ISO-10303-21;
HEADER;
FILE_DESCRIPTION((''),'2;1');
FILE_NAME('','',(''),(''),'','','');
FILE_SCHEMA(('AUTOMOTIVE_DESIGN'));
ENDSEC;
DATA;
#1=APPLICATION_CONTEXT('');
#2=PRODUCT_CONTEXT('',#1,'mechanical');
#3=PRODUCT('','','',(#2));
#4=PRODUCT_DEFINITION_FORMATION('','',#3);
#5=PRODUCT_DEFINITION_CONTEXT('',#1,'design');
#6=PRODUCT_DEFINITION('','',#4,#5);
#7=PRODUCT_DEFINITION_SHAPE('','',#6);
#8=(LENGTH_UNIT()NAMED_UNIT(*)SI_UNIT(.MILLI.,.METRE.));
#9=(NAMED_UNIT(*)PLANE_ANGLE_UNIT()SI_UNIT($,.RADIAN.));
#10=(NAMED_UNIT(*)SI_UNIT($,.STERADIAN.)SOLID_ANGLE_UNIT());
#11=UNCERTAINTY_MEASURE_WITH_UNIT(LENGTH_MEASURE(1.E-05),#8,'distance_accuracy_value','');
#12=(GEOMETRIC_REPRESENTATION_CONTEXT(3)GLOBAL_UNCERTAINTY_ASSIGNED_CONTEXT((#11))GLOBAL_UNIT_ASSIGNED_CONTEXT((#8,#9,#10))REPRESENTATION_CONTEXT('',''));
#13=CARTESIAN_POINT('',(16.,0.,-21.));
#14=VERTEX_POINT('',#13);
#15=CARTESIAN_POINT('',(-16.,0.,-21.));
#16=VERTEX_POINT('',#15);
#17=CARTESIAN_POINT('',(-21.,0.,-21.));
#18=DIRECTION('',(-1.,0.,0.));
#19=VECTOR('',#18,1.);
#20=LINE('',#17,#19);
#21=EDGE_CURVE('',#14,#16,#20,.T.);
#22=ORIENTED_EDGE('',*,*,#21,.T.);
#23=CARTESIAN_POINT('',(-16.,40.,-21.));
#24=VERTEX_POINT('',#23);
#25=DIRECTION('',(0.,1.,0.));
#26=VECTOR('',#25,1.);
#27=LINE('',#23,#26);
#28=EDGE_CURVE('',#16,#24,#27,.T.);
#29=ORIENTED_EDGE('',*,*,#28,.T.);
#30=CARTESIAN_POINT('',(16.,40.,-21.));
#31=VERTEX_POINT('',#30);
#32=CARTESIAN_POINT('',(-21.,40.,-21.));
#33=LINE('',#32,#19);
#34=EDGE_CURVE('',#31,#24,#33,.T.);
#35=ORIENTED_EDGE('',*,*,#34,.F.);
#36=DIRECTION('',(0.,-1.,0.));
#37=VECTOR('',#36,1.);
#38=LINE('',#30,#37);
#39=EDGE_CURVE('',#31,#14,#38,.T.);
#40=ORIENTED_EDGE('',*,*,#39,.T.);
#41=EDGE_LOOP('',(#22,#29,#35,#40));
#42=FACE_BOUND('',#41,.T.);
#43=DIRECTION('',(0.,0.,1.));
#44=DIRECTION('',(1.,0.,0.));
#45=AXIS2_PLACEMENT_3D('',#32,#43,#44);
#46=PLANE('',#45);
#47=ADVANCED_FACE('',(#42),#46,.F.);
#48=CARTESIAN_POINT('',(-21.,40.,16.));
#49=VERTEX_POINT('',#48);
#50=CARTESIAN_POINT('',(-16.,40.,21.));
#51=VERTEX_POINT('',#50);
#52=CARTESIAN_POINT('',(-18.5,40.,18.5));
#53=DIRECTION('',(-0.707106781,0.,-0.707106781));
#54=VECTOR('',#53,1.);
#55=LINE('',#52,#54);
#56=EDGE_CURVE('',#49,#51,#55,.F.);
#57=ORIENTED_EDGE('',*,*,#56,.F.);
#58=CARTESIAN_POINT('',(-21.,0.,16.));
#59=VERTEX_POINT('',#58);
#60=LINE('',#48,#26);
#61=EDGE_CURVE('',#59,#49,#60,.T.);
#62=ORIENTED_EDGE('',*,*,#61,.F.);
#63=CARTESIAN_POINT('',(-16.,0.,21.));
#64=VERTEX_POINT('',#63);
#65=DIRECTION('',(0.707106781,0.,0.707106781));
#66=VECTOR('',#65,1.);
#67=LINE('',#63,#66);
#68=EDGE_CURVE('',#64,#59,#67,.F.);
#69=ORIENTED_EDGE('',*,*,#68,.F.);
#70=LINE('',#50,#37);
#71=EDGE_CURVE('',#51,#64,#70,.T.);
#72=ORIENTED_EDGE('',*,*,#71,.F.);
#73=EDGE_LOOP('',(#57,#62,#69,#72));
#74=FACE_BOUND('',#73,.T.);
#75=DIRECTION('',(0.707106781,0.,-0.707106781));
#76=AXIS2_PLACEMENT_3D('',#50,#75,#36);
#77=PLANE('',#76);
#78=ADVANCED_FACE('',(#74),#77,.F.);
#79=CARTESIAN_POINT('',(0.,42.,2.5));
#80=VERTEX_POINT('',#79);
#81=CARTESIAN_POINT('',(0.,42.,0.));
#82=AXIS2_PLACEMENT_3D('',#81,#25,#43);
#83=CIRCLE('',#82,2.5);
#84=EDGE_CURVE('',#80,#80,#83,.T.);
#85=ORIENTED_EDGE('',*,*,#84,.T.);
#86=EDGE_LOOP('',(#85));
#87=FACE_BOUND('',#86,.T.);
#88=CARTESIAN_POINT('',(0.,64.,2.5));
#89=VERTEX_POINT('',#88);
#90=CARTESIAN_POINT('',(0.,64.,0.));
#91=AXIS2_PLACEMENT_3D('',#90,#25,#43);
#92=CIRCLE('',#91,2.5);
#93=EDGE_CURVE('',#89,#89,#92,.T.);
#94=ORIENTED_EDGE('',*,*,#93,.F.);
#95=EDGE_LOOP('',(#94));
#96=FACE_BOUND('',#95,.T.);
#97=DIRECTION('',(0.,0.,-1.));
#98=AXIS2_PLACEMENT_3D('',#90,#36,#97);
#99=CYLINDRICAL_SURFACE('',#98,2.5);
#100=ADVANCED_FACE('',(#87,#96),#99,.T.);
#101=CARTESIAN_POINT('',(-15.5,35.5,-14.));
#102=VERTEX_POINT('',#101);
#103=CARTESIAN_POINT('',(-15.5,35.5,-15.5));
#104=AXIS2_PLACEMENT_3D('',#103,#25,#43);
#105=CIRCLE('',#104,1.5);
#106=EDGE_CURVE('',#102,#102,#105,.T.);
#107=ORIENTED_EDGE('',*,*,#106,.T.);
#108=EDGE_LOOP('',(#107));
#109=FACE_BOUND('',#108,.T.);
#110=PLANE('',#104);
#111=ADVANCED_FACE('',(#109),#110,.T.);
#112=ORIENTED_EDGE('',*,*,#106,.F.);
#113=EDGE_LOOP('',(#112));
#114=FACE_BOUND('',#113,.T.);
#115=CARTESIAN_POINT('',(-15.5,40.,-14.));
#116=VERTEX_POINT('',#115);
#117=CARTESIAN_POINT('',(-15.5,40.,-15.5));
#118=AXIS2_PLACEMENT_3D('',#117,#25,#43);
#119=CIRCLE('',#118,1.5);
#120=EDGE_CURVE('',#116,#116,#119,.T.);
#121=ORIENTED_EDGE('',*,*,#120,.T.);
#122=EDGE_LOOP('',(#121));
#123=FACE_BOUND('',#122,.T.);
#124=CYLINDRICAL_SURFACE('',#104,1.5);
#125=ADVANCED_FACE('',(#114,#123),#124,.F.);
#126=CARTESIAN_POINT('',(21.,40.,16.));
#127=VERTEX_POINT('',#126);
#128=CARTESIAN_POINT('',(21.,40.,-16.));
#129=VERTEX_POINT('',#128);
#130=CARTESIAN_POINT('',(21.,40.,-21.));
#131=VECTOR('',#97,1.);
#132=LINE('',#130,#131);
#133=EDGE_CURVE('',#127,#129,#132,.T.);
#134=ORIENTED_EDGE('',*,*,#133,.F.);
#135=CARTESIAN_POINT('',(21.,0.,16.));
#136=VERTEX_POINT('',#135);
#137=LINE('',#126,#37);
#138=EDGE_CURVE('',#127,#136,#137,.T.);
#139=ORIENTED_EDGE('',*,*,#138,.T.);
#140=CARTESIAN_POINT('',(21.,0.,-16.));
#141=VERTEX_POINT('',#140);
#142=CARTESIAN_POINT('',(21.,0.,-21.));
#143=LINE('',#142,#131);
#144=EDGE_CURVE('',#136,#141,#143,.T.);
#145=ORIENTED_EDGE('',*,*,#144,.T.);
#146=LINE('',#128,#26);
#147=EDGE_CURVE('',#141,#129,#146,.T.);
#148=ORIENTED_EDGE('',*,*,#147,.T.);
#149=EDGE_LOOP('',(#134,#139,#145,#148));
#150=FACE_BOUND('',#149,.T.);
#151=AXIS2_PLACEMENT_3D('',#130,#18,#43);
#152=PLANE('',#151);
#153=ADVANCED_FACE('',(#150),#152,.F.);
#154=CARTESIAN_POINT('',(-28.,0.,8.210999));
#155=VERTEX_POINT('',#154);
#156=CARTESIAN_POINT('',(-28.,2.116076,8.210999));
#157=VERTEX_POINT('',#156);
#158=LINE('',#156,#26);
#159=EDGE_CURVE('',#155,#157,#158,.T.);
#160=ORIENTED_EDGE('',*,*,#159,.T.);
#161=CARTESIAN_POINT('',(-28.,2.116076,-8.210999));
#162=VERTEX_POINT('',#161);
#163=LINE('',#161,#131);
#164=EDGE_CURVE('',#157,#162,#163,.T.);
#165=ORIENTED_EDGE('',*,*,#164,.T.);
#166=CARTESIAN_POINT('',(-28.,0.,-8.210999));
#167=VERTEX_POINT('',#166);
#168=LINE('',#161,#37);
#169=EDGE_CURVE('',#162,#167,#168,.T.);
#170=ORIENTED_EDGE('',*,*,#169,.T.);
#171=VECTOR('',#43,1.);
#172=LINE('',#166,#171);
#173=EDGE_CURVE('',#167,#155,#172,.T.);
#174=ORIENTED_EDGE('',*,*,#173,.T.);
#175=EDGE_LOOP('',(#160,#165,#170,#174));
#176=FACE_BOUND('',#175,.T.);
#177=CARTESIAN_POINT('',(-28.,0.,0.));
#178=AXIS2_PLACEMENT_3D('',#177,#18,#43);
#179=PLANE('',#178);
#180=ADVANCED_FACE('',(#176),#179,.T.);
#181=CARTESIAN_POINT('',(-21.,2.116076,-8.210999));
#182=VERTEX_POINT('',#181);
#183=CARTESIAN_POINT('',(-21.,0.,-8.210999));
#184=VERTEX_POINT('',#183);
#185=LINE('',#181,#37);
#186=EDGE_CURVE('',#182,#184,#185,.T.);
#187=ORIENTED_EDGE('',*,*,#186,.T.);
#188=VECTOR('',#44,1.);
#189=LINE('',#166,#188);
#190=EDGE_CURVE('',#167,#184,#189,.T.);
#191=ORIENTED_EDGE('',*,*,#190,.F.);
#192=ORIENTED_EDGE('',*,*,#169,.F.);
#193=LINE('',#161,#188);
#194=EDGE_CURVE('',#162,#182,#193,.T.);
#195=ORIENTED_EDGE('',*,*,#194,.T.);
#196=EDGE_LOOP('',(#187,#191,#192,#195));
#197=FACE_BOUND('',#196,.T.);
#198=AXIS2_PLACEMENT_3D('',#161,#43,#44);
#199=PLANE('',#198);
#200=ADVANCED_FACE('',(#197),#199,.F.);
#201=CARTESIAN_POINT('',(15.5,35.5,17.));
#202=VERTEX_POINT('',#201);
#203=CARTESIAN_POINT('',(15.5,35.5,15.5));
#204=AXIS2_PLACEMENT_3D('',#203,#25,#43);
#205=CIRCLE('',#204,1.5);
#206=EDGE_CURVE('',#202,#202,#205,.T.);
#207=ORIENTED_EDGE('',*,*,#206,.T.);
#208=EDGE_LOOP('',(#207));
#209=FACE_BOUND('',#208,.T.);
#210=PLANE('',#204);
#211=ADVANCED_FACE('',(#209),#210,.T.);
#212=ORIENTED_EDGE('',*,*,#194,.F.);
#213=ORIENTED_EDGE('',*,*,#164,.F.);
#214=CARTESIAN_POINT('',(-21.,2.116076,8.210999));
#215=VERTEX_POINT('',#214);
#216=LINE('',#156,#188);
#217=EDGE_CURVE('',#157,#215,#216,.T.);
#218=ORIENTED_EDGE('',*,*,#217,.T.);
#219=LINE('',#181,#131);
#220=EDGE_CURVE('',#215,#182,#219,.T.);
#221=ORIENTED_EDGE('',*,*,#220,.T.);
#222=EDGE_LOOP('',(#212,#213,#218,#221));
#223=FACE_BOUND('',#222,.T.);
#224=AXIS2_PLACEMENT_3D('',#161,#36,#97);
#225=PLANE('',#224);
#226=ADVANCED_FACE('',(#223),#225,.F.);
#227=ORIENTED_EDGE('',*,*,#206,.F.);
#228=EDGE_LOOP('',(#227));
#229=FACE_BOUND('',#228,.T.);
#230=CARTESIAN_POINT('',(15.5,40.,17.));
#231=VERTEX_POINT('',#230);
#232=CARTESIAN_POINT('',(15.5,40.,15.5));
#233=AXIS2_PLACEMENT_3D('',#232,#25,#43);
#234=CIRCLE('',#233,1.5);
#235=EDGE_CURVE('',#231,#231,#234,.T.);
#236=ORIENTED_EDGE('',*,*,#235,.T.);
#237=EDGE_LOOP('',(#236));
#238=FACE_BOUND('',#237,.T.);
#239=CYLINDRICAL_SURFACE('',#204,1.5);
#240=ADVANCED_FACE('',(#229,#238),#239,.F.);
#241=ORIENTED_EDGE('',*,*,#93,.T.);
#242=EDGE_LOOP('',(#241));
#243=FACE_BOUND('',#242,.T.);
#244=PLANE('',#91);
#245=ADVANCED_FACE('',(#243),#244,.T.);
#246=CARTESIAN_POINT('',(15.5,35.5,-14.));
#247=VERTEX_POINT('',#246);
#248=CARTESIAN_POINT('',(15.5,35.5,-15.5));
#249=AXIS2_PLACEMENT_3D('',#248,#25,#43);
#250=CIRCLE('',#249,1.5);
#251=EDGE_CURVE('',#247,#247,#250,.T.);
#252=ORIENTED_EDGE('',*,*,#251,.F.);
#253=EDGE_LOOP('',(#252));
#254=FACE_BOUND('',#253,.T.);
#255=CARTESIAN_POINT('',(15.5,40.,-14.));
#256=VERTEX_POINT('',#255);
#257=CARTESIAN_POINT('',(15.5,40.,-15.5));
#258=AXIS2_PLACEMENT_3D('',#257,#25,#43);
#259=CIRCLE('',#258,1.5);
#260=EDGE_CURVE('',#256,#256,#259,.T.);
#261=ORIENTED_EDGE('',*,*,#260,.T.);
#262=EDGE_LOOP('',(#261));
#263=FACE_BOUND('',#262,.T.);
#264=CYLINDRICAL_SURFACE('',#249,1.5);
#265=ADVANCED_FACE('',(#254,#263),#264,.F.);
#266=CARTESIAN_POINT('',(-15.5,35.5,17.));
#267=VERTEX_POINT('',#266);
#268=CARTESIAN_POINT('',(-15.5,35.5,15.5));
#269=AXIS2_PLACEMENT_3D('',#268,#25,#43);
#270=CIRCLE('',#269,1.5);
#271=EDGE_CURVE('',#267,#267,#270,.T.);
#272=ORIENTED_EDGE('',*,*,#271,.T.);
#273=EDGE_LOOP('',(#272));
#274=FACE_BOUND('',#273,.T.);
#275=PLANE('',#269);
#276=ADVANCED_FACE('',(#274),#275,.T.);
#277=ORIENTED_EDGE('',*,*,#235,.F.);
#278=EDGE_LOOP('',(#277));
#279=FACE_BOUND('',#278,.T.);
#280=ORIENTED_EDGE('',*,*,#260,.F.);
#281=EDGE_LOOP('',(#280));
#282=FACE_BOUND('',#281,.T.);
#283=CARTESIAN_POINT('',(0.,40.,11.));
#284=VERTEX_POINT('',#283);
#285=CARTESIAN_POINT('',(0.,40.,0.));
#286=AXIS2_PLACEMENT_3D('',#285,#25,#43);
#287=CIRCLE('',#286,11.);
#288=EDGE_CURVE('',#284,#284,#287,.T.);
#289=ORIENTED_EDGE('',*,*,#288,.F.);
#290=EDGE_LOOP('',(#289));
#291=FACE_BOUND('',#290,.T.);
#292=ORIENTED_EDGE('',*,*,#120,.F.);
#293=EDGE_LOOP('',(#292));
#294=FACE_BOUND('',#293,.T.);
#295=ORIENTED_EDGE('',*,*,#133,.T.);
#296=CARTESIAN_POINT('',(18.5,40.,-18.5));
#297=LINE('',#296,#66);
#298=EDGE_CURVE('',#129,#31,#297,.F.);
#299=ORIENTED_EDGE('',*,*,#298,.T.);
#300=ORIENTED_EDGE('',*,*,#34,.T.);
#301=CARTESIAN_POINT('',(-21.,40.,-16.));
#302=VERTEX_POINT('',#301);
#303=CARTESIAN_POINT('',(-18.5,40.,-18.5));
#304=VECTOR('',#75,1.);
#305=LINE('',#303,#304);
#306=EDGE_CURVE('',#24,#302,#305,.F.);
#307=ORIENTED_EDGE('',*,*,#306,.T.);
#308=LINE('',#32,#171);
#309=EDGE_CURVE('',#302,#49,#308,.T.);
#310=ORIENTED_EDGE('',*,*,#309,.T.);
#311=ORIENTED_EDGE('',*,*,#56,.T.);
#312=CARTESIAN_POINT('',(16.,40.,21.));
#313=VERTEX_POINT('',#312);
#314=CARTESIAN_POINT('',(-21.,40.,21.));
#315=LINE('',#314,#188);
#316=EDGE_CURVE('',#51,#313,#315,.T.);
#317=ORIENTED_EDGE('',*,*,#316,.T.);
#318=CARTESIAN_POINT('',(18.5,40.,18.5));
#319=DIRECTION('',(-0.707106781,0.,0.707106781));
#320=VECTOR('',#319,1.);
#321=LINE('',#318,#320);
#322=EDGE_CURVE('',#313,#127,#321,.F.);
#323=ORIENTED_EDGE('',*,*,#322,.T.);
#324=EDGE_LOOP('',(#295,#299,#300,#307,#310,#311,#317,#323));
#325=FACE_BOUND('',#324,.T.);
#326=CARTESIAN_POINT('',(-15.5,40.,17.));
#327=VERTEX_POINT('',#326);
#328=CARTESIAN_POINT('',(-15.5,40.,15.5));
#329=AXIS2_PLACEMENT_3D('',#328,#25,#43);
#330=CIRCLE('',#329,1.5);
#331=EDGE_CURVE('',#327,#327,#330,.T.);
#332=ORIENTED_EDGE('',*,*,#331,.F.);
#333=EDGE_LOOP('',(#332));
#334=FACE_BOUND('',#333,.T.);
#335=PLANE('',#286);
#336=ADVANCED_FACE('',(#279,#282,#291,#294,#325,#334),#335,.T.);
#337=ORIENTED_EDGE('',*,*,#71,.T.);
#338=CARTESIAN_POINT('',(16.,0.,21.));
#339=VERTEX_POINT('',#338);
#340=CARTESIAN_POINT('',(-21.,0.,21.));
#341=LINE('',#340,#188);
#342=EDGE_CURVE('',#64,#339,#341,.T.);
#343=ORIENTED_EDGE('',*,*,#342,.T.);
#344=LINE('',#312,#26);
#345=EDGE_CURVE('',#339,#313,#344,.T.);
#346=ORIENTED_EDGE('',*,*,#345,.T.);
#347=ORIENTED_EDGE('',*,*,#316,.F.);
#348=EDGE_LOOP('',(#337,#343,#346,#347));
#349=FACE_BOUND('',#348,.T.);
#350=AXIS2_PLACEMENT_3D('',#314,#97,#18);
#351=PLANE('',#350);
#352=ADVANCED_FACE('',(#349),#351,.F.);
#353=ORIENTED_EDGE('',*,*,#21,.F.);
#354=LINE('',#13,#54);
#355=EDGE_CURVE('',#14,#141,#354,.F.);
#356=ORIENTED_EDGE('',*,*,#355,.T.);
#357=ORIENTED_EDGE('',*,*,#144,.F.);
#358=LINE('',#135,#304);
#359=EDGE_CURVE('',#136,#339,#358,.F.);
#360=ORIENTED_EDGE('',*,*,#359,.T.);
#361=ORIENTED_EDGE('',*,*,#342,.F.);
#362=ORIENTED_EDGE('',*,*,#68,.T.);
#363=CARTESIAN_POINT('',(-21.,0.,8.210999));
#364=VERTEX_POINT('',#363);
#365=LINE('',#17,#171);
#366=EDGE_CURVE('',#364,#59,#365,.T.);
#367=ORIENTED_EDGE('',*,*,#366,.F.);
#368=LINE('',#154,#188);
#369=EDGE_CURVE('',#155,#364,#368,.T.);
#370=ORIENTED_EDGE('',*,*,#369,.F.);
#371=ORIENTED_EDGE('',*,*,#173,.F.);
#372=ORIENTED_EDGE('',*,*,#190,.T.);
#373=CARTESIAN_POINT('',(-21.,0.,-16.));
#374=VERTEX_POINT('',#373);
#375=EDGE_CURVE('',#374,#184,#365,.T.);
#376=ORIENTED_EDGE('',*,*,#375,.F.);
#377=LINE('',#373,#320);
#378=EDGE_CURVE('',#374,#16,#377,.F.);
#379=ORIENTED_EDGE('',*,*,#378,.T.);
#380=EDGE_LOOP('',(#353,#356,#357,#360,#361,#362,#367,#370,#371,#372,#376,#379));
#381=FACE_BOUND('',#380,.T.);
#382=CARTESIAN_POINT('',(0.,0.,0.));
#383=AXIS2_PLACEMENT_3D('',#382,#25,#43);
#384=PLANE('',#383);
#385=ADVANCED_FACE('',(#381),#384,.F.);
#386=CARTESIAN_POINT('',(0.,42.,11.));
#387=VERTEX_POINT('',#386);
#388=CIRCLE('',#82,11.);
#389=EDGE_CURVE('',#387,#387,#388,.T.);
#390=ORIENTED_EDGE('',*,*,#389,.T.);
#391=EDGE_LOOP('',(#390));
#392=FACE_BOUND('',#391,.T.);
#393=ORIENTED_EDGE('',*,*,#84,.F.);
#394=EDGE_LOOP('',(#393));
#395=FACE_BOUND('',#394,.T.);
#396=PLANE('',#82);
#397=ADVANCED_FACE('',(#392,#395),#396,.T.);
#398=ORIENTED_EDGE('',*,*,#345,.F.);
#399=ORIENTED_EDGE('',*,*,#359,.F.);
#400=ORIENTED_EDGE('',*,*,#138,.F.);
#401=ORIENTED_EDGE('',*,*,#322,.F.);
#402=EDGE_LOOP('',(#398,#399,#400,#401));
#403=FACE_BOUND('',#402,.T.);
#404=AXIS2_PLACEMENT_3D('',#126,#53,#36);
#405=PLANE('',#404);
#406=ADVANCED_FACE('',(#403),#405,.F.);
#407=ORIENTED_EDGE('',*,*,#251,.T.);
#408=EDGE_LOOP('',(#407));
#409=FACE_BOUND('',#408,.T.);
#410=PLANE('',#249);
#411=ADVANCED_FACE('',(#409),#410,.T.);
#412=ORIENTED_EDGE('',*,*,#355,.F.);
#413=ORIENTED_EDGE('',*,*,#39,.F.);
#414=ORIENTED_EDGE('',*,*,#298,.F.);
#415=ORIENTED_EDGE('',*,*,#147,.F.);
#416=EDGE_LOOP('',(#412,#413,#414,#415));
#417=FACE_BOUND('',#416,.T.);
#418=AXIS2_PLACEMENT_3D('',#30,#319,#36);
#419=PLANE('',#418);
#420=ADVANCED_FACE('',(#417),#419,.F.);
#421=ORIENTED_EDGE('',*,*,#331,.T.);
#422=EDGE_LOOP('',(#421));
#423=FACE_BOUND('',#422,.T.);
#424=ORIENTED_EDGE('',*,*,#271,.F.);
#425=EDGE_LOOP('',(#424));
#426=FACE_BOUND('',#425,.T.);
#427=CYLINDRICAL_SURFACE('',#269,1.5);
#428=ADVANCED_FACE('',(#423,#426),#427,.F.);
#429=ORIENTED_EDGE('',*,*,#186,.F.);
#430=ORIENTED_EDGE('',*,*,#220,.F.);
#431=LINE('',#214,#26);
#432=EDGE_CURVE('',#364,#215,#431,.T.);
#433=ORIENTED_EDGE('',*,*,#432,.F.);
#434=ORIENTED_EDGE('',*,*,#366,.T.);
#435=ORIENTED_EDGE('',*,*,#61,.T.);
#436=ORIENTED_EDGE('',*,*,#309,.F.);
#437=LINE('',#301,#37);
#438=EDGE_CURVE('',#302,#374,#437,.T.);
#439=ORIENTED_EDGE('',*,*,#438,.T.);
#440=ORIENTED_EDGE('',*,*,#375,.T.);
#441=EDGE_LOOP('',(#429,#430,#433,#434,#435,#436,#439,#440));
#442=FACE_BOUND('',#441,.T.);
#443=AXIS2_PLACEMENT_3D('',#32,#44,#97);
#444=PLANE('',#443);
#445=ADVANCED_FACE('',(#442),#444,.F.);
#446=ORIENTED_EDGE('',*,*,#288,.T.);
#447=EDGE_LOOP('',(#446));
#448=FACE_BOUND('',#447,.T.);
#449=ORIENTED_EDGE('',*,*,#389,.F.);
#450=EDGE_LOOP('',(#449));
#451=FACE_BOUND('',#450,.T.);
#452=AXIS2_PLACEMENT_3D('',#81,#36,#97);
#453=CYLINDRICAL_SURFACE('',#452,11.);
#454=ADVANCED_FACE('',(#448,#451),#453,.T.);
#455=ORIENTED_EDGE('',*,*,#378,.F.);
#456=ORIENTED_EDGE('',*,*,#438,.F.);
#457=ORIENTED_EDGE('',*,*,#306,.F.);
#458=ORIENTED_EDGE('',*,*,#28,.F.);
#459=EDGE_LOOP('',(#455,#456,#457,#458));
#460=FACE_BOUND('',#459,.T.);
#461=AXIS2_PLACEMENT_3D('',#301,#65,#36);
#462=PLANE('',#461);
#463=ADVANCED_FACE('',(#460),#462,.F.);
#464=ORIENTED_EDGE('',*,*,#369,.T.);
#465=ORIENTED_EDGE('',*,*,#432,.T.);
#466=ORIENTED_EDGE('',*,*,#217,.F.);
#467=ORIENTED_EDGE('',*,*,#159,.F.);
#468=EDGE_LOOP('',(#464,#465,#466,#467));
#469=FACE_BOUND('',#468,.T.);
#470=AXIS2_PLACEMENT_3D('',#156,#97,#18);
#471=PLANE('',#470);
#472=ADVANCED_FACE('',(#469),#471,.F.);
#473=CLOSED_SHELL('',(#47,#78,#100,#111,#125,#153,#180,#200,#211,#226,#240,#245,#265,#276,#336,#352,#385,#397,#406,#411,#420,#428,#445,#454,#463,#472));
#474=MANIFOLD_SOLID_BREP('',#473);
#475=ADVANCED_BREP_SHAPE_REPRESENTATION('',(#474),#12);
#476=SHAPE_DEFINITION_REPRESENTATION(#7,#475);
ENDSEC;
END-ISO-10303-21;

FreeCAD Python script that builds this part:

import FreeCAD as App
import Part
import Sketcher


def edges_at(feature, points):
    """Names of the edges that pass closest to the given points."""
    edges = feature.Shape.Edges
    near = lambda p: min(range(len(edges)), key=lambda i: edges[i].distToShape(Part.Vertex(*p))[0])
    return sorted({f"Edge{near(p) + 1}" for p in points})

doc = App.newDocument("Part")
body = doc.addObject("PartDesign::Body", "Body")

sketch1 = doc.addObject("Sketcher::SketchObject", "Sketch")
body.addObject(sketch1)
sketch1.AttachmentSupport = (doc.XZ_Plane, [""])
sketch1.MapMode = "FlatFace"
sketch1.addGeometry([
    Part.LineSegment(App.Vector(-21, -21, 0), App.Vector(-21, 21, 0)),
    Part.LineSegment(App.Vector(-21, 21, 0), App.Vector(21, 21, 0)),
    Part.LineSegment(App.Vector(21, 21, 0), App.Vector(21, -21, 0)),
    Part.LineSegment(App.Vector(21, -21, 0), App.Vector(-21, -21, 0)),
], False)
sketch1.addConstraint([
    Sketcher.Constraint("Coincident", 0, 2, 1, 1),
    Sketcher.Constraint("Coincident", 1, 2, 2, 1),
    Sketcher.Constraint("Coincident", 2, 2, 3, 1),
    Sketcher.Constraint("Coincident", 3, 2, 0, 1),
    Sketcher.Constraint("Vertical", 0),
    Sketcher.Constraint("Horizontal", 1),
    Sketcher.Constraint("Vertical", 2),
    Sketcher.Constraint("Horizontal", 3),
    Sketcher.Constraint("Symmetric", 0, 2, 2, 2, -1, 1),
    Sketcher.Constraint("Equal", 3, 0),
    Sketcher.Constraint("DistanceX", 1, 1, 1, 2, 42.0),
])
pad1 = doc.addObject("PartDesign::Pad", "Pad")
body.addObject(pad1)
pad1.Profile = sketch1
pad1.Length = 40
pad1.Reversed = True

sketch2 = doc.addObject("Sketcher::SketchObject", "Sketch001")
body.addObject(sketch2)
sketch2.AttachmentSupport = (doc.XZ_Plane, [""])
sketch2.MapMode = "FlatFace"
sketch2.AttachmentOffset = App.Placement(App.Vector(0, 0, -40), App.Rotation())
sketch2.addGeometry(Part.Circle(App.Vector(0, 0, 0), App.Vector(0, 0, 1), 11), False)
sketch2.addConstraint([
    Sketcher.Constraint("Coincident", 0, 3, -1, 1),
    Sketcher.Constraint("Diameter", 0, 22.0),
])
pad2 = doc.addObject("PartDesign::Pad", "Pad001")
body.addObject(pad2)
pad2.Profile = sketch2
pad2.Length = 2
pad2.Reversed = True

sketch3 = doc.addObject("Sketcher::SketchObject", "Sketch002")
body.addObject(sketch3)
sketch3.AttachmentSupport = (doc.XZ_Plane, [""])
sketch3.MapMode = "FlatFace"
sketch3.AttachmentOffset = App.Placement(App.Vector(0, 0, -42), App.Rotation())
sketch3.addGeometry(Part.Circle(App.Vector(0, 0, 0), App.Vector(0, 0, 1), 2.5), False)
sketch3.addConstraint([
    Sketcher.Constraint("Coincident", 0, 3, -1, 1),
    Sketcher.Constraint("Diameter", 0, 5.0),
])
pad3 = doc.addObject("PartDesign::Pad", "Pad002")
body.addObject(pad3)
pad3.Profile = sketch3
pad3.Length = 22
pad3.Reversed = True

sketch4 = doc.addObject("Sketcher::SketchObject", "Sketch003")
body.addObject(sketch4)
sketch4.AttachmentSupport = (doc.XZ_Plane, [""])
sketch4.MapMode = "FlatFace"
sketch4.AttachmentOffset = App.Placement(App.Vector(0, 0, -40), App.Rotation())
sketch4.addGeometry([
    Part.Circle(App.Vector(-15.5, -15.5, 0), App.Vector(0, 0, 1), 1.5),
    Part.Circle(App.Vector(15.5, -15.5, 0), App.Vector(0, 0, 1), 1.5),
    Part.Circle(App.Vector(15.5, 15.5, 0), App.Vector(0, 0, 1), 1.5),
    Part.Circle(App.Vector(-15.5, 15.5, 0), App.Vector(0, 0, 1), 1.5),
], False)
sketch4.addConstraint([
    Sketcher.Constraint("Equal", 0, 1),
    Sketcher.Constraint("Equal", 1, 2),
    Sketcher.Constraint("Equal", 2, 3),
    Sketcher.Constraint("Symmetric", 0, 3, 2, 3, -1, 1),
    Sketcher.Constraint("Symmetric", 1, 3, 3, 3, -1, 1),
    Sketcher.Constraint("Symmetric", 0, 3, 1, 3, -2),
    Sketcher.Constraint("Diameter", 0, 3.0),
    Sketcher.Constraint("DistanceX", 0, 3, 1, 3, 31.0),
    Sketcher.Constraint("DistanceY", 1, 3, 2, 3, 31.0),
])
pocket1 = doc.addObject("PartDesign::Pocket", "Pocket")
body.addObject(pocket1)
pocket1.Profile = sketch4
pocket1.Length = 4.5
pocket1.Reversed = True
doc.recompute()

chamfer = doc.addObject("PartDesign::Chamfer", "Chamfer")
body.addObject(chamfer)
chamfer.Base = (pocket1, edges_at(pocket1, [
    (21, 20, 21),
    (-21, 20, 21),
    (-21, 20, -21),
    (21, 20, -21),
]))
chamfer.Size = 5

sketch5 = doc.addObject("Sketcher::SketchObject", "Sketch004")
body.addObject(sketch5)
sketch5.AttachmentSupport = (doc.YZ_Plane, [""])
sketch5.MapMode = "FlatFace"
sketch5.AttachmentOffset = App.Placement(App.Vector(0, 0, -21), App.Rotation())
sketch5.addGeometry([
    Part.LineSegment(App.Vector(2.116076, -8.210999, 0), App.Vector(0, -8.210999, 0)),
    Part.LineSegment(App.Vector(0, -8.210999, 0), App.Vector(0, 8.210999, 0)),
    Part.LineSegment(App.Vector(0, 8.210999, 0), App.Vector(2.116076, 8.210999, 0)),
    Part.LineSegment(App.Vector(2.116076, 8.210999, 0), App.Vector(2.116076, -8.210999, 0)),
], False)
sketch5.addConstraint([
    Sketcher.Constraint("Coincident", 0, 2, 1, 1),
    Sketcher.Constraint("Coincident", 1, 2, 2, 1),
    Sketcher.Constraint("Coincident", 2, 2, 3, 1),
    Sketcher.Constraint("Coincident", 3, 2, 0, 1),
    Sketcher.Constraint("Horizontal", 0),
    Sketcher.Constraint("Vertical", 1),
    Sketcher.Constraint("Horizontal", 2),
    Sketcher.Constraint("Vertical", 3),
    Sketcher.Constraint("Symmetric", 0, 2, 1, 2, -1, 1),
    Sketcher.Constraint("DistanceY", 1, 1, 1, 2, 16.421999),
    Sketcher.Constraint("DistanceX", 0, 2, 0, 1, 2.116076),
])
pad4 = doc.addObject("PartDesign::Pad", "Pad003")
body.addObject(pad4)
pad4.Profile = sketch5
pad4.Length = 7
pad4.Reversed = True

doc.recompute()
